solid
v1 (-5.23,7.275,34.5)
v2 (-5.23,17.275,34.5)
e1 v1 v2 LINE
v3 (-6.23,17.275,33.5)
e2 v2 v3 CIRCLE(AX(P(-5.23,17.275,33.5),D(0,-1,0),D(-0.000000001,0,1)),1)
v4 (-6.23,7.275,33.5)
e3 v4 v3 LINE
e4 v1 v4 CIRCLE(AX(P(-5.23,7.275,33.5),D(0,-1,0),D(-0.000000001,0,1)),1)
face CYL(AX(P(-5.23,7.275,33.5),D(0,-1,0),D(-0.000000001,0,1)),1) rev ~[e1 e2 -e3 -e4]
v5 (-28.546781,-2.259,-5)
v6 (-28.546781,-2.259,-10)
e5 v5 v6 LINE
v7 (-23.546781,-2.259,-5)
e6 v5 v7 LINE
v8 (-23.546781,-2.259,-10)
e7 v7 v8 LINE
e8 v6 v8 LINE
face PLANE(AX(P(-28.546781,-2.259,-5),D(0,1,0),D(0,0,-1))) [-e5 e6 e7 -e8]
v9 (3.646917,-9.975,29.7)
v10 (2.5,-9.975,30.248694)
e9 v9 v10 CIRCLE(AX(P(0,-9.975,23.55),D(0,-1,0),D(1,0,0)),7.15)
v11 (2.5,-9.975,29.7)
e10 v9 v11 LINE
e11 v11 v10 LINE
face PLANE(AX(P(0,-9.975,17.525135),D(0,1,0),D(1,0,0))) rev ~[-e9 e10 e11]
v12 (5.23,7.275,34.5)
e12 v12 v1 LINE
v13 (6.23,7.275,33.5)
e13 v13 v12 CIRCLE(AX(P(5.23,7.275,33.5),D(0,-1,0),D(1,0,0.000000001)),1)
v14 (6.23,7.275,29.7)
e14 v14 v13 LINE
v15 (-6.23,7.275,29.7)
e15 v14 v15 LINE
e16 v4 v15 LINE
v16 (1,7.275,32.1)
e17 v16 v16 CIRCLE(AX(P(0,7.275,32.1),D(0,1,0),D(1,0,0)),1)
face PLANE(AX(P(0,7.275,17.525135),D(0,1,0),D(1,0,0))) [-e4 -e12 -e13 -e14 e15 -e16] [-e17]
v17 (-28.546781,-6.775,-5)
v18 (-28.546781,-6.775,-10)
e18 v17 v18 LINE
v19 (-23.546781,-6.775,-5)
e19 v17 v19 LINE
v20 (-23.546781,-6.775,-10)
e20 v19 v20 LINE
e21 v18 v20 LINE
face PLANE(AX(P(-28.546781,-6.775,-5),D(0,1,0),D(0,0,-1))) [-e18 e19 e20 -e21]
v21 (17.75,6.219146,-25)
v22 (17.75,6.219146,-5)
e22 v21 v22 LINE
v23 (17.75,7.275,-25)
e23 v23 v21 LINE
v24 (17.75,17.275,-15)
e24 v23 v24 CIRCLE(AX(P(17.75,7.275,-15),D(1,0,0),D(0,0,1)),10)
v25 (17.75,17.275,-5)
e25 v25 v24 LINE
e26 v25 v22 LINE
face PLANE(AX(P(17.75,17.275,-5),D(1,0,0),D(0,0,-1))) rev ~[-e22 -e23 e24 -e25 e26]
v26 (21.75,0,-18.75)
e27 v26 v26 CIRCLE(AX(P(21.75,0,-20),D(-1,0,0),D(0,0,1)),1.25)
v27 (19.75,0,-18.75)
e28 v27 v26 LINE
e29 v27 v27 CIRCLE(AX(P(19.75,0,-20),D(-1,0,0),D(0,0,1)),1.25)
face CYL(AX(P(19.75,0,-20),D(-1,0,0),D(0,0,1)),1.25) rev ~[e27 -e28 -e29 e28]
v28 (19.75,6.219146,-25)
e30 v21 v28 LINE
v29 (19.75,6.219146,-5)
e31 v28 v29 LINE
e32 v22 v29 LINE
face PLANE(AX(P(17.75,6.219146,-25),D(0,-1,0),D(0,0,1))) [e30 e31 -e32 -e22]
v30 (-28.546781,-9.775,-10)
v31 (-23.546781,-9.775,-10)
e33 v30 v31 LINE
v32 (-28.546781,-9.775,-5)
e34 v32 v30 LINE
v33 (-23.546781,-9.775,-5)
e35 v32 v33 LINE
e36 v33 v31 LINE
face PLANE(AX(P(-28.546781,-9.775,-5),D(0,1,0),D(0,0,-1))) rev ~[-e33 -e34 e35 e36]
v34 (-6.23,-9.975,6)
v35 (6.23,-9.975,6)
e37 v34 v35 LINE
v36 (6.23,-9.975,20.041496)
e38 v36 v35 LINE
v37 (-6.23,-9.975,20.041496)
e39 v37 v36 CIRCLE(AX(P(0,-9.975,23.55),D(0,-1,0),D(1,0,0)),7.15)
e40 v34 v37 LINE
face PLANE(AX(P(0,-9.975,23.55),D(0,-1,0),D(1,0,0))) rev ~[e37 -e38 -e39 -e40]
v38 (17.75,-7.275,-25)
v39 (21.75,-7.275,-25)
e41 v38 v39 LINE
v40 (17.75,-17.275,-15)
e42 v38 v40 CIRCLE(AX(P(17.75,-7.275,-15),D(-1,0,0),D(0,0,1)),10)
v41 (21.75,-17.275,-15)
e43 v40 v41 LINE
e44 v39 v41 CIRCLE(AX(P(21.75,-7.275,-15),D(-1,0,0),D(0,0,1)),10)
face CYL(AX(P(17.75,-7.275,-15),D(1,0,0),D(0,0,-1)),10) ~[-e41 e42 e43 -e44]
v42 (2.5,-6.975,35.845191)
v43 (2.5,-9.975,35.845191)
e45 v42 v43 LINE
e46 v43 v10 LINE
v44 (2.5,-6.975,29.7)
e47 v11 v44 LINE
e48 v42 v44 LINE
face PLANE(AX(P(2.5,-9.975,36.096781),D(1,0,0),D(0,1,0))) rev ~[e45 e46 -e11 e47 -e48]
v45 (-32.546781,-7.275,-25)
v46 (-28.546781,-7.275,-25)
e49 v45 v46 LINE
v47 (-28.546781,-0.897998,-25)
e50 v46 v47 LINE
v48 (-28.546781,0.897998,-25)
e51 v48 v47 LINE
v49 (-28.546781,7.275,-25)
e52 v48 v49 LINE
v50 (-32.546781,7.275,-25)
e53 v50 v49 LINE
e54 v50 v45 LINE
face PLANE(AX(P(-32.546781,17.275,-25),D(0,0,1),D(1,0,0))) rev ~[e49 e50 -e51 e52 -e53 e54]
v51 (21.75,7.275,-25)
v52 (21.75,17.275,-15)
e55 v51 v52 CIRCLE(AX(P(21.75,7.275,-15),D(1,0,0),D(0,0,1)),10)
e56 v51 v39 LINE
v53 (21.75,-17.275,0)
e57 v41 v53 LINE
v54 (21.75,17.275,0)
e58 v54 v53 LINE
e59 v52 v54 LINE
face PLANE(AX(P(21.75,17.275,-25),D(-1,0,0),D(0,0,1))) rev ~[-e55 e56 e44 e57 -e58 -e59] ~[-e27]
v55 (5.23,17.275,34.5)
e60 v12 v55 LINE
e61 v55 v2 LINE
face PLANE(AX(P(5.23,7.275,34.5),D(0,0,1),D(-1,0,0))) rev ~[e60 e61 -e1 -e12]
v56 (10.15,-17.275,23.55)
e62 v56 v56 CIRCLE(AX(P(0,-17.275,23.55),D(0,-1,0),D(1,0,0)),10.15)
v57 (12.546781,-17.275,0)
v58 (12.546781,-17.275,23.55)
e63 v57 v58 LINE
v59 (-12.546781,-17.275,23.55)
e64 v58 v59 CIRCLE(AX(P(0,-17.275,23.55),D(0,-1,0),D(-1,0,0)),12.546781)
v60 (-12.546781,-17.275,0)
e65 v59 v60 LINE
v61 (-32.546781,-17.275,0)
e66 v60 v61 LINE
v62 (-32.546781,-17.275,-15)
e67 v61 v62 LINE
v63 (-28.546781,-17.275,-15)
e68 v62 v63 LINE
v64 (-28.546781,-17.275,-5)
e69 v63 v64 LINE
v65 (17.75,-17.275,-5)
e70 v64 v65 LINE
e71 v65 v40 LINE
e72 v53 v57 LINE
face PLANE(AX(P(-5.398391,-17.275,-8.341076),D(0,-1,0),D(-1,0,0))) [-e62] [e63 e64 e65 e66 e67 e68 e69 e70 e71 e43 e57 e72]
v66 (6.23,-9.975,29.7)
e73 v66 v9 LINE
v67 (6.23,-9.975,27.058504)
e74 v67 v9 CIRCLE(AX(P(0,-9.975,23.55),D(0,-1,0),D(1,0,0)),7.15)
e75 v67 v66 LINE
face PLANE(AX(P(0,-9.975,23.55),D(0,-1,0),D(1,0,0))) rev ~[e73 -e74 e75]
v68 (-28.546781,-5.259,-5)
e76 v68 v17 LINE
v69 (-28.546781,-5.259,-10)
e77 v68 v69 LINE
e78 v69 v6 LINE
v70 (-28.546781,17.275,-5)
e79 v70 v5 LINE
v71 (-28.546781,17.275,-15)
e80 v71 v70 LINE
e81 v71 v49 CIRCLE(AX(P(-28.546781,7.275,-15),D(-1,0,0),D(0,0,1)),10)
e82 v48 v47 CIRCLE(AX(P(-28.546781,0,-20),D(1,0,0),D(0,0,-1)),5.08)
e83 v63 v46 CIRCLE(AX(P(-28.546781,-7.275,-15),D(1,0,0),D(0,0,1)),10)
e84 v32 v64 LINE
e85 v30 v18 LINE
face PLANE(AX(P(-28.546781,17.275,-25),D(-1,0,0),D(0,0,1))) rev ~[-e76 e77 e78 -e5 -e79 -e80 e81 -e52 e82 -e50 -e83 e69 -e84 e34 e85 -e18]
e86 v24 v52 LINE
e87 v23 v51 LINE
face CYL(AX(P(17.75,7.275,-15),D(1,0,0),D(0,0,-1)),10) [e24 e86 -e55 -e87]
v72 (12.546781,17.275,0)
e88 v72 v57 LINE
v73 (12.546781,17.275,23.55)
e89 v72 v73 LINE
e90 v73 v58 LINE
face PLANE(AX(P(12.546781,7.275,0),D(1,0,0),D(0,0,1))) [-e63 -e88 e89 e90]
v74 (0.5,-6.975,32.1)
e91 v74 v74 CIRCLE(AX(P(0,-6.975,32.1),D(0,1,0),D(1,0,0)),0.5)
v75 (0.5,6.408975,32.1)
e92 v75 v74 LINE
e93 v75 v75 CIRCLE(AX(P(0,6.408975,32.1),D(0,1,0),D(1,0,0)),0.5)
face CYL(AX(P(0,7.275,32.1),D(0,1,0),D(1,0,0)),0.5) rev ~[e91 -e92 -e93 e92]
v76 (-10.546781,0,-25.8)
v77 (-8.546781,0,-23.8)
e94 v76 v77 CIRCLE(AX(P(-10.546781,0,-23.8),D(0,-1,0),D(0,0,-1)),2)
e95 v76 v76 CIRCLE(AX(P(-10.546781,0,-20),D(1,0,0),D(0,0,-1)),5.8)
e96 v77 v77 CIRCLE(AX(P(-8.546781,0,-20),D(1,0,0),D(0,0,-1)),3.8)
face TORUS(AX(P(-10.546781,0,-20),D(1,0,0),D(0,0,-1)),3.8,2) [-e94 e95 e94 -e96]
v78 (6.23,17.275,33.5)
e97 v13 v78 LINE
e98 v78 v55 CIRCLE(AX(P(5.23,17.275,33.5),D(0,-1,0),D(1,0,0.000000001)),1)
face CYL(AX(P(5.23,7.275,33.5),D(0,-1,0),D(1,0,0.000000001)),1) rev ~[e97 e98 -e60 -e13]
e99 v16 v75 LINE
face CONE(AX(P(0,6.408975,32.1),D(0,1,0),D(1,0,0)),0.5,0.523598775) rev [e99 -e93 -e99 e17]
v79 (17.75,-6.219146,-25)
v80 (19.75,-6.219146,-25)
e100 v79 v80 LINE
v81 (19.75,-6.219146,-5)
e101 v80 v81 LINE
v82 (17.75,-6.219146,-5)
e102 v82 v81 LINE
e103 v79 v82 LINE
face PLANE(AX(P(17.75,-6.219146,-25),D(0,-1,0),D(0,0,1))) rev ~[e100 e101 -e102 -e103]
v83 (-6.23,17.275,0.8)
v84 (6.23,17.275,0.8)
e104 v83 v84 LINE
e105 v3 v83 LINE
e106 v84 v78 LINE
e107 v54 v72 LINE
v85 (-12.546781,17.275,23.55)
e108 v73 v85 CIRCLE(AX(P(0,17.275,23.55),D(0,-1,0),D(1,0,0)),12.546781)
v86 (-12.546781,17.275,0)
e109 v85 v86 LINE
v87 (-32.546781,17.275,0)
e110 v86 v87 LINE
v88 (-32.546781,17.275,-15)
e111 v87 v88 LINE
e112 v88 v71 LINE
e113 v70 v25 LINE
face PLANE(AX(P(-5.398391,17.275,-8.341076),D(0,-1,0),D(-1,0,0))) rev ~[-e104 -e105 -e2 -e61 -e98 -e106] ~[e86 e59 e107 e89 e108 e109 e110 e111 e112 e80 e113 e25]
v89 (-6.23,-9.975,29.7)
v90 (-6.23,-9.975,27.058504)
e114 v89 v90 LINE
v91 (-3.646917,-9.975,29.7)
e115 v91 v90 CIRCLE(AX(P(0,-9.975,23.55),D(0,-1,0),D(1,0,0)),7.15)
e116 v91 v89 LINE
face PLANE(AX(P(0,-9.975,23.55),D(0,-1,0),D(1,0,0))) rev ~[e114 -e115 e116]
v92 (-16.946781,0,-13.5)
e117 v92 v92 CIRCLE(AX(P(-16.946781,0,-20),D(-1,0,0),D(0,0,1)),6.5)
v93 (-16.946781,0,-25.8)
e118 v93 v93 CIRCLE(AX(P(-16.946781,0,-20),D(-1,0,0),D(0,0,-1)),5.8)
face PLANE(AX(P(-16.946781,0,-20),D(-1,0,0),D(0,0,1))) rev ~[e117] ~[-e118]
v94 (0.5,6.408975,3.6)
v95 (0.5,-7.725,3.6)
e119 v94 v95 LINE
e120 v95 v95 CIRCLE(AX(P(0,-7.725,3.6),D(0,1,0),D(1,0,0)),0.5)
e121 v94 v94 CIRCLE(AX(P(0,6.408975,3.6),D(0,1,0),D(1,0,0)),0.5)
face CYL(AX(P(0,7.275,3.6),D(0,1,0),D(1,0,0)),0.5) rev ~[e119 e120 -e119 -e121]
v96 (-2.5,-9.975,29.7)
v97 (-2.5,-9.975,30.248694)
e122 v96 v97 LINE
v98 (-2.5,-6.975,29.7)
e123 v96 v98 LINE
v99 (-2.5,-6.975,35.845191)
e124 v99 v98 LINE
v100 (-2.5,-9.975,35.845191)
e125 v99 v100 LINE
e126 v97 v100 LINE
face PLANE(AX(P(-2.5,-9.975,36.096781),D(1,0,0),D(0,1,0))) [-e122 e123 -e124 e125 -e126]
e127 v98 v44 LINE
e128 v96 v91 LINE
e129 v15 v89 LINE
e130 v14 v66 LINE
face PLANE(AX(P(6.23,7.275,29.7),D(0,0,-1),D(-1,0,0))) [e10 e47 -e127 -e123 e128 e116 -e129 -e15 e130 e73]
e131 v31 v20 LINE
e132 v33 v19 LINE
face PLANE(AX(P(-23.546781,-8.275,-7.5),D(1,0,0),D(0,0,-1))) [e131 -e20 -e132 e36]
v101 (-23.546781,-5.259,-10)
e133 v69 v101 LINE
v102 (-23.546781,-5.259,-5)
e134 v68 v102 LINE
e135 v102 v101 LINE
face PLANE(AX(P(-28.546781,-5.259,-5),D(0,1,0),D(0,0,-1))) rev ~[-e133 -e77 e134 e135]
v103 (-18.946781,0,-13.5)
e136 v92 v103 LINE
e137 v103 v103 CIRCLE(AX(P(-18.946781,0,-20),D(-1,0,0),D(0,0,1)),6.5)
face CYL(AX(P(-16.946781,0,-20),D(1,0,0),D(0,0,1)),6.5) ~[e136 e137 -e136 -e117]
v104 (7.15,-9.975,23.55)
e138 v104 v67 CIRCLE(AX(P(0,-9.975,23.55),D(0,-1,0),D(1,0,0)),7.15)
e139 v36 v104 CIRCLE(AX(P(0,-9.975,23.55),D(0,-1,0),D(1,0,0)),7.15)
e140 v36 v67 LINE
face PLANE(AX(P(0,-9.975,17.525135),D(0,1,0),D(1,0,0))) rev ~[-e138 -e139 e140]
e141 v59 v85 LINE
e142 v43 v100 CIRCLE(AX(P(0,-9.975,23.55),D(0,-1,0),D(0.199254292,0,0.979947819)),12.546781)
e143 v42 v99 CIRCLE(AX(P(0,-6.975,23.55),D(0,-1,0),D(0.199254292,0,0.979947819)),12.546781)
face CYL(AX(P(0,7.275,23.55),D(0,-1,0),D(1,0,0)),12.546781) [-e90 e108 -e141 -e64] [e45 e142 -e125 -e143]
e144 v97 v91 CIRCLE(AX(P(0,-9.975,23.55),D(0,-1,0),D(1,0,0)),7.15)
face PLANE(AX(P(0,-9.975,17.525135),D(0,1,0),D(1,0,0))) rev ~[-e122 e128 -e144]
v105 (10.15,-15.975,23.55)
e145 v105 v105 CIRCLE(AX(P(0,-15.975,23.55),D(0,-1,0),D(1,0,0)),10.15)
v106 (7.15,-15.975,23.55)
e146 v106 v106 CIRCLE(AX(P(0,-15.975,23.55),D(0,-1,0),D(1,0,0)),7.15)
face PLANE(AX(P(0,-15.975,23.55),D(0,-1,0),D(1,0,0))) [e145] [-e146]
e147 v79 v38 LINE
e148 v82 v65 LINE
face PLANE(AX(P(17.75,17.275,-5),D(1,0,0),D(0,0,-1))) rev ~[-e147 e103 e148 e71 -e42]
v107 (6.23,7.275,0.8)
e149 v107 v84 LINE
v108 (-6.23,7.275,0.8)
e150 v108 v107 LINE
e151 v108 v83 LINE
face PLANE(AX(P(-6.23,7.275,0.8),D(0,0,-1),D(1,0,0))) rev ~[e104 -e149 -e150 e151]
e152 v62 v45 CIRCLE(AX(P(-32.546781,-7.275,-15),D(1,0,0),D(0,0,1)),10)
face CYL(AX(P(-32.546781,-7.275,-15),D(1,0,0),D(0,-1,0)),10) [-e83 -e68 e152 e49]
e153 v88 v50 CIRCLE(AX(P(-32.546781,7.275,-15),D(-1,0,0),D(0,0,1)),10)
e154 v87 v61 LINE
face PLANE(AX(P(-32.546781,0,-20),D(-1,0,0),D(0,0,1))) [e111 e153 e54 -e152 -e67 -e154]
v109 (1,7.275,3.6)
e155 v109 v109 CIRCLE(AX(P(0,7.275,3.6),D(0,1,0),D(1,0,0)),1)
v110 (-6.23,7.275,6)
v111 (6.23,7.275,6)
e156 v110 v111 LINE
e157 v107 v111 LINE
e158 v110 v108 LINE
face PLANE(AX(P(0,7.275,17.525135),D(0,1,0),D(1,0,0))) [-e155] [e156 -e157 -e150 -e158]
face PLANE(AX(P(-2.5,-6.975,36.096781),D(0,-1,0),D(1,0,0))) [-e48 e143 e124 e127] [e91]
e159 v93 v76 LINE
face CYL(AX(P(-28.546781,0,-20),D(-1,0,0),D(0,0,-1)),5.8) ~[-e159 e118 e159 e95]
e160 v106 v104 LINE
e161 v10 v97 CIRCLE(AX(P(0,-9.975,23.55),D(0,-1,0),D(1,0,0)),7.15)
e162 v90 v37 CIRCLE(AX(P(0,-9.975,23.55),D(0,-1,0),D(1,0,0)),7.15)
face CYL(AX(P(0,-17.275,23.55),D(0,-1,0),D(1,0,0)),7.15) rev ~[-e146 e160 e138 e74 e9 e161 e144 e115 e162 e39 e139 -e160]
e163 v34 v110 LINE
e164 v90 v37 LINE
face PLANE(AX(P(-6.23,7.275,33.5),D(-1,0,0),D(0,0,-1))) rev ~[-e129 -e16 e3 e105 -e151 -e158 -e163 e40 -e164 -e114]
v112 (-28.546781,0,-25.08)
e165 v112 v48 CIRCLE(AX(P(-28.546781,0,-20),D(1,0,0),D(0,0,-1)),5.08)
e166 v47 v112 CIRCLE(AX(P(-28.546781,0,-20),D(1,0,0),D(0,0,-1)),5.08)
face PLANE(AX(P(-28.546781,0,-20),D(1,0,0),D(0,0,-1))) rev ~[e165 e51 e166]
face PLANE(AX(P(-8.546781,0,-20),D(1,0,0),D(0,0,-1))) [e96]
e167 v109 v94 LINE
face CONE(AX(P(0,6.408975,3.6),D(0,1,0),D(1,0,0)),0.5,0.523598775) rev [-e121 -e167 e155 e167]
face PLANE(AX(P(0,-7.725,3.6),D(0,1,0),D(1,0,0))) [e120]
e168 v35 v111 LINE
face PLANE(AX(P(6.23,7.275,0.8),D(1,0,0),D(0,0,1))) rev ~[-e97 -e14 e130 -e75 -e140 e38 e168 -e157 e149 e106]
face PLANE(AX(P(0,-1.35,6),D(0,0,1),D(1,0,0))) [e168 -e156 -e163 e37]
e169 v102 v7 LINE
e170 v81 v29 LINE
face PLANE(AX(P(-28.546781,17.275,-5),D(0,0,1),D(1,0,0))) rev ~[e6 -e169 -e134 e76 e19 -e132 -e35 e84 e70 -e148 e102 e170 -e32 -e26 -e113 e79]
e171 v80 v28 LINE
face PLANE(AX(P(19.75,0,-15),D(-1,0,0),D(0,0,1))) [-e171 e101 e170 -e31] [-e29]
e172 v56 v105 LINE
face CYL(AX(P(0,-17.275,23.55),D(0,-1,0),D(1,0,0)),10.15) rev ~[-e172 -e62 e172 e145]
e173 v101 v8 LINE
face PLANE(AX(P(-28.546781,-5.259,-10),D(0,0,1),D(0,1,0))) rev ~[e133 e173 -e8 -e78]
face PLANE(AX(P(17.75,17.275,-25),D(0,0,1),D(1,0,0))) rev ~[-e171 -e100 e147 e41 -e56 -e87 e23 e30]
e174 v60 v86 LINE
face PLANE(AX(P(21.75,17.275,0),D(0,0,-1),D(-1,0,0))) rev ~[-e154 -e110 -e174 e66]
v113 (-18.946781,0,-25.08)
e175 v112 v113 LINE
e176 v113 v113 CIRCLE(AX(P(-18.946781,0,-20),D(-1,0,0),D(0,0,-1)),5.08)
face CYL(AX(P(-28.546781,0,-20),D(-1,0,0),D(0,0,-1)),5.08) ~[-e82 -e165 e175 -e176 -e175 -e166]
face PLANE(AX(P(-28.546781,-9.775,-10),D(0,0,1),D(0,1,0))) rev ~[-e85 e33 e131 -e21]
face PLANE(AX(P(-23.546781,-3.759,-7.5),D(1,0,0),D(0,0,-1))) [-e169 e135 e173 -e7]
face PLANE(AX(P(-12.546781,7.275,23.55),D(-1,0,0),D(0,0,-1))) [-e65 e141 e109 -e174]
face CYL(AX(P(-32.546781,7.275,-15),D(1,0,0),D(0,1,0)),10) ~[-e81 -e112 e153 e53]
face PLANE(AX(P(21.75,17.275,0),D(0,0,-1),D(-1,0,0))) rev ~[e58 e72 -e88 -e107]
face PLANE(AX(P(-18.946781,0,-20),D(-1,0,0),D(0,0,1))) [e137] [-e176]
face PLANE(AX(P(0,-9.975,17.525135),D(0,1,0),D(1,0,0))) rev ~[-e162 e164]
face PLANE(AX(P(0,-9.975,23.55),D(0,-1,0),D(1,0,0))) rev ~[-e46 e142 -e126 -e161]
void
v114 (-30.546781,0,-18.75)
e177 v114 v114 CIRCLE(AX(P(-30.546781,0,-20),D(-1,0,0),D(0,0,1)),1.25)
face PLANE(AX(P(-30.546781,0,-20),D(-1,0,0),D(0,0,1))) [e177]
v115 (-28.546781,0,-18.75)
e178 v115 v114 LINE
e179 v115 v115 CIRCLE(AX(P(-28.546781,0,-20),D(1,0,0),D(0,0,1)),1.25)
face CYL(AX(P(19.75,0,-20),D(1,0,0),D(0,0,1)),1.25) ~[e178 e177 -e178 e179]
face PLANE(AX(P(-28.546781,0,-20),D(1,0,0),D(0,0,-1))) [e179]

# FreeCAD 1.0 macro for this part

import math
import FreeCAD as App
import Part
import Sketcher
from FreeCAD import Vector


def edges_at(feature, points):
    """Names of the edges that pass closest to the given points."""
    edges = feature.Shape.Edges
    near = lambda p: min(range(len(edges)), key=lambda i: edges[i].distToShape(Part.Vertex(*p))[0])
    return sorted({f"Edge{near(p) + 1}" for p in points})


def add_polygon(sketch, points):
    """Adds a closed chain of lines whose ends are joined by coincident constraints."""
    first, n = sketch.GeometryCount, len(points)
    for a, b in zip(points, points[1:] + points[:1]):
        sketch.addGeometry(Part.LineSegment(App.Vector(*a, 0), App.Vector(*b, 0)), False)
    for i in range(n):
        sketch.addConstraint(Sketcher.Constraint("Coincident", first + i, 2, first + (i + 1) % n, 1))

doc = App.newDocument("Part")
body = doc.addObject("PartDesign::Body", "Body")

sketch1 = body.newObject("Sketcher::SketchObject", "Sketch")
sketch1.AttachmentSupport = (doc.getObject("XY_Plane"), [""])
sketch1.MapMode = "FlatFace"
add_polygon(sketch1, [(-6, 7), (-6, -10), (6, -10), (6, 7)])
sketch1.addConstraint([
    Sketcher.Constraint("Vertical", 0),
    Sketcher.Constraint("Horizontal", 1),
    Sketcher.Constraint("Vertical", 2),
    Sketcher.Constraint("Horizontal", 3),
    Sketcher.Constraint("DistanceX", 1, 1, 1, 2, 12.46),
    Sketcher.Constraint("DistanceY", 0, 2, 0, 1, 17.25),
    Sketcher.Constraint("DistanceX", 0, 2, -1, 1, 6.23),
    Sketcher.Constraint("DistanceY", 0, 2, -1, 1, 9.975),
])
pad1 = body.newObject("PartDesign::Pad", "Pad")
pad1.Profile = sketch1
pad1.Length = 6
body2 = doc.addObject("PartDesign::Body", "Body001")

sketch2 = body2.newObject("Sketcher::SketchObject", "Sketch001")
sketch2.AttachmentSupport = (doc.getObject("XZ_Plane001"), [""])
sketch2.MapMode = "FlatFace"
sketch2.AttachmentOffset = App.Placement(Vector(0, 0, 9.975), App.Rotation())
sketch2.addGeometry([
    Part.Circle(Vector(0, 24, 0), Vector(0, 0, 1), 13),
    Part.Circle(Vector(0, 24, 0), Vector(0, 0, 1), 11),
], False)
sketch2.addConstraint([
    Sketcher.Constraint("Coincident", 1, 3, 0, 3),
    Sketcher.Constraint("PointOnObject", 0, 3, -2),
    Sketcher.Constraint("Diameter", 1, 22.3),
    Sketcher.Constraint("DistanceY", -1, 1, 0, 3, 23.55),
    Sketcher.Constraint("Diameter", 0, 25.093562),
])
pad2 = body2.newObject("PartDesign::Pad", "Pad001")
pad2.Profile = sketch2
pad2.Type = "TwoLengths"
pad2.Length = 7.3
pad2.Length2 = 17.25
body.AllowCompound = True
doc.recompute()

boolean = body.newObject("PartDesign::Boolean", "Boolean")
boolean.Type = "Fuse"
boolean.addObjects([body2])

sketch3 = body.newObject("Sketcher::SketchObject", "Sketch002")
sketch3.AttachmentSupport = (doc.getObject("XZ_Plane"), [""])
sketch3.MapMode = "FlatFace"
sketch3.AttachmentOffset = App.Placement(Vector(0, 0, -7.275), App.Rotation())
sketch3.addGeometry([
    Part.LineSegment(Vector(13, 24, 0), Vector(13, 0, 0)),
    Part.LineSegment(Vector(13, 0, 0), Vector(6, 0, 0)),
    Part.LineSegment(Vector(6, 0, 0), Vector(6, 30, 0)),
    Part.LineSegment(Vector(6, 30, 0), Vector(-6, 30, 0)),
    Part.LineSegment(Vector(-6, 30, 0), Vector(-6, 0, 0)),
    Part.LineSegment(Vector(-6, 0, 0), Vector(-13, 0, 0)),
    Part.LineSegment(Vector(-13, 0, 0), Vector(-13, 24, 0)),
    Part.ArcOfCircle(Part.Circle(Vector(0, 24, 0), Vector(0, 0, 1), 13), math.radians(0), math.radians(180)),
], False)
sketch3.addConstraint([
    Sketcher.Constraint("Coincident", 0, 2, 1, 1),
    Sketcher.Constraint("Coincident", 1, 2, 2, 1),
    Sketcher.Constraint("Coincident", 2, 2, 3, 1),
    Sketcher.Constraint("Coincident", 3, 2, 4, 1),
    Sketcher.Constraint("Coincident", 4, 2, 5, 1),
    Sketcher.Constraint("Coincident", 5, 2, 6, 1),
    Sketcher.Constraint("Tangent", 6, 2, 7, 2),
    Sketcher.Constraint("Tangent", 7, 1, 0, 1),
    Sketcher.Constraint("Vertical", 0),
    Sketcher.Constraint("Horizontal", 1),
    Sketcher.Constraint("Vertical", 2),
    Sketcher.Constraint("Horizontal", 3),
    Sketcher.Constraint("Vertical", 4),
    Sketcher.Constraint("Horizontal", 5),
    Sketcher.Constraint("Vertical", 6),
    Sketcher.Constraint("Symmetric", 1, 2, 4, 2, -1, 1),
    Sketcher.Constraint("Symmetric", 0, 2, 5, 2, -2),
    Sketcher.Constraint("DistanceY", 2, 1, 2, 2, 29.7),
    Sketcher.Constraint("DistanceX", 3, 2, 3, 1, 12.46),
    Sketcher.Constraint("DistanceY", 0, 2, 0, 1, 23.55),
    Sketcher.Constraint("Radius", 7, 12.546781),
])
pad3 = body.newObject("PartDesign::Pad", "Pad002")
pad3.Profile = sketch3
pad3.Length = 17.25

sketch4 = body.newObject("Sketcher::SketchObject", "Sketch003")
sketch4.AttachmentSupport = (doc.getObject("XZ_Plane"), [""])
sketch4.MapMode = "FlatFace"
sketch4.AttachmentOffset = App.Placement(Vector(0, 0, -7.275), App.Rotation())
sketch4.addGeometry([
    Part.Circle(Vector(0, 3.6, 0), Vector(0, 0, 1), 0.5),
    Part.Circle(Vector(0, 32.1, 0), Vector(0, 0, 1), 0.5),
], False)
sketch4.addConstraint([
    Sketcher.Constraint("Equal", 0, 1),
    Sketcher.Constraint("PointOnObject", 0, 3, -2),
    Sketcher.Constraint("PointOnObject", 1, 3, -2),
    Sketcher.Constraint("Diameter", 0, 1.0),
    Sketcher.Constraint("DistanceY", -1, 1, 0, 3, 3.6),
    Sketcher.Constraint("DistanceY", -1, 1, 1, 3, 32.1),
])
pocket1 = body.newObject("PartDesign::Pocket", "Pocket")
pocket1.Profile = sketch4
pocket1.Length = 15
pocket1.Reversed = True
doc.recompute()

chamfer = body.newObject("PartDesign::Chamfer", "Chamfer")
chamfer.Base = (pocket1, edges_at(pocket1, [(-0.5, 7.275, 3.6), (-0.5, 7.275, 32.1)]))
chamfer.ChamferType = "Two distances"
chamfer.Size = 0.5
chamfer.Size2 = 0.866025

sketch5 = body.newObject("Sketcher::SketchObject", "Sketch004")
sketch5.AttachmentSupport = (doc.getObject("XZ_Plane"), [""])
sketch5.MapMode = "FlatFace"
sketch5.AttachmentOffset = App.Placement(Vector(0, 0, -7.275), App.Rotation())
add_polygon(sketch5, [(-6, 6), (-6, 30), (6, 30), (6, 6)])
sketch5.addConstraint([
    Sketcher.Constraint("Vertical", 0),
    Sketcher.Constraint("Horizontal", 1),
    Sketcher.Constraint("Vertical", 2),
    Sketcher.Constraint("Horizontal", 3),
    Sketcher.Constraint("DistanceY", 0, 1, 0, 2, 23.7),
    Sketcher.Constraint("DistanceY", -1, 1, 2, 2, 6.0),
    Sketcher.Constraint("DistanceX", 1, 1, 1, 2, 12.46),
    Sketcher.Constraint("DistanceX", 0, 2, -1, 1, 6.23),
])
pocket2 = body.newObject("PartDesign::Pocket", "Pocket001")
pocket2.Profile = sketch5
pocket2.Length = 17.25
pocket2.Reversed = True

sketch6 = body.newObject("Sketcher::SketchObject", "Sketch005")
sketch6.AttachmentSupport = (doc.getObject("XY_Plane"), [""])
sketch6.MapMode = "FlatFace"
sketch6.AttachmentOffset = App.Placement(Vector(0, 0, 36.096781), App.Rotation())
add_polygon(sketch6, [(-2.5, -7), (-2.5, -10), (2.5, -10), (2.5, -7)])
sketch6.addConstraint([
    Sketcher.Constraint("Vertical", 0),
    Sketcher.Constraint("Horizontal", 1),
    Sketcher.Constraint("Vertical", 2),
    Sketcher.Constraint("Horizontal", 3),
    Sketcher.Constraint("DistanceX", 1, 1, 1, 2, 5.0),
    Sketcher.Constraint("DistanceY", 0, 2, 0, 1, 3.0),
    Sketcher.Constraint("DistanceX", 0, 2, -1, 1, 2.5),
    Sketcher.Constraint("DistanceY", 0, 2, -1, 1, 9.975),
])
pocket3 = body.newObject("PartDesign::Pocket", "Pocket002")
pocket3.Profile = sketch6
pocket3.Type = "UpToFirst"

sketch7 = body.newObject("Sketcher::SketchObject", "Sketch006")
sketch7.AttachmentSupport = (doc.getObject("XZ_Plane"), [""])
sketch7.MapMode = "FlatFace"
sketch7.AttachmentOffset = App.Placement(Vector(0, 0, 17.275), App.Rotation())
sketch7.addGeometry([
    Part.LineSegment(Vector(-13, 24, 0), Vector(-13, 0, 0)),
    Part.LineSegment(Vector(-13, 0, 0), Vector(13, 0, 0)),
    Part.LineSegment(Vector(13, 0, 0), Vector(13, 24, 0)),
    Part.ArcOfCircle(Part.Circle(Vector(0, 24, 0), Vector(0, 0, 1), 13), math.radians(180), math.radians(360)),
], False)
sketch7.addConstraint([
    Sketcher.Constraint("Coincident", 0, 2, 1, 1),
    Sketcher.Constraint("Coincident", 1, 2, 2, 1),
    Sketcher.Constraint("Tangent", 2, 2, 3, 2),
    Sketcher.Constraint("Tangent", 3, 1, 0, 1),
    Sketcher.Constraint("Vertical", 0),
    Sketcher.Constraint("Horizontal", 1),
    Sketcher.Constraint("Vertical", 2),
    Sketcher.Constraint("Symmetric", 0, 2, 1, 2, -1, 1),
    Sketcher.Constraint("DistanceY", 0, 2, 0, 1, 23.55),
    Sketcher.Constraint("Radius", 3, 12.546781),
])
pad4 = body.newObject("PartDesign::Pad", "Pad003")
pad4.Profile = sketch7
pad4.Length = 7.3
pad4.Reversed = True

sketch8 = body.newObject("Sketcher::SketchObject", "Sketch007")
sketch8.AttachmentSupport = (doc.getObject("XZ_Plane"), [""])
sketch8.MapMode = "FlatFace"
sketch8.AttachmentOffset = App.Placement(Vector(0, 0, -7.275), App.Rotation())
sketch8.addGeometry([
    Part.LineSegment(Vector(12.5, 0, 0), Vector(-12.5, 0, 0)),
    Part.LineSegment(Vector(-12.5, 0, 0), Vector(-12.5, 23.6, 0)),
    Part.ArcOfCircle(Part.Circle(Vector(0, 23.6, 0), Vector(0, 0, 1), 12.5), math.radians(0), math.radians(180)),
    Part.LineSegment(Vector(12.5, 23.6, 0), Vector(12.5, 0, 0)),
    Part.LineSegment(Vector(-6.2, 0.8, 0), Vector(6.2, 0.8, 0)),
    Part.LineSegment(Vector(6.2, 0.8, 0), Vector(6.2, 33.5, 0)),
    Part.ArcOfCircle(Part.Circle(Vector(5.2, 33.5, 0), Vector(0, 0, 1), 1), math.radians(0), math.radians(90)),
    Part.LineSegment(Vector(5.2, 34.5, 0), Vector(-5.2, 34.5, 0)),
    Part.ArcOfCircle(Part.Circle(Vector(-5.2, 33.5, 0), Vector(0, 0, 1), 1), math.radians(90), math.radians(180)),
    Part.LineSegment(Vector(-6.2, 33.5, 0), Vector(-6.2, 0.8, 0)),
], False)
sketch8.addConstraint([
    Sketcher.Constraint("Coincident", 0, 2, 1, 1),
    Sketcher.Constraint("Tangent", 1, 2, 2, 2),
    Sketcher.Constraint("Tangent", 2, 1, 3, 1),
    Sketcher.Constraint("Coincident", 3, 2, 0, 1),
    Sketcher.Constraint("Coincident", 4, 2, 5, 1),
    Sketcher.Constraint("Tangent", 5, 2, 6, 1),
    Sketcher.Constraint("Tangent", 6, 2, 7, 1),
    Sketcher.Constraint("Tangent", 7, 2, 8, 1),
    Sketcher.Constraint("Tangent", 8, 2, 9, 1),
    Sketcher.Constraint("Coincident", 9, 2, 4, 1),
    Sketcher.Constraint("Horizontal", 0),
    Sketcher.Constraint("Vertical", 1),
    Sketcher.Constraint("Vertical", 3),
    Sketcher.Constraint("Horizontal", 4),
    Sketcher.Constraint("Vertical", 5),
    Sketcher.Constraint("Horizontal", 7),
    Sketcher.Constraint("Vertical", 9),
    Sketcher.Constraint("Equal", 6, 8),
    Sketcher.Constraint("Symmetric", 0, 2, 3, 2, -1, 1),
    Sketcher.Constraint("Radius", 6, 1.0),
    Sketcher.Constraint("DistanceY", 5, 1, 5, 2, 32.7),
    Sketcher.Constraint("DistanceX", 4, 1, 4, 2, 12.46),
    Sketcher.Constraint("DistanceY", 1, 1, 1, 2, 23.55),
    Sketcher.Constraint("DistanceY", -1, 1, 6, 3, 33.5),
    Sketcher.Constraint("DistanceX", -1, 1, 6, 3, 5.23),
    Sketcher.Constraint("Radius", 2, 12.546781),
])
pad5 = body.newObject("PartDesign::Pad", "Pad004")
pad5.Profile = sketch8
pad5.Length = 10
pad5.Reversed = True

sketch9 = body.newObject("Sketcher::SketchObject", "Sketch008")
sketch9.AttachmentSupport = (doc.getObject("XZ_Plane"), [""])
sketch9.MapMode = "FlatFace"
sketch9.AttachmentOffset = App.Placement(Vector(0, 0, 17.275), App.Rotation())
sketch9.addGeometry([
    Part.Circle(Vector(0, 24, 0), Vector(0, 0, 1), 11),
    Part.Circle(Vector(0, 24, 0), Vector(0, 0, 1), 7),
], False)
sketch9.addConstraint([
    Sketcher.Constraint("Coincident", 1, 3, 0, 3),
    Sketcher.Constraint("PointOnObject", 0, 3, -2),
    Sketcher.Constraint("Diameter", 0, 22.3),
    Sketcher.Constraint("Diameter", 1, 14.3),
    Sketcher.Constraint("DistanceY", -1, 1, 0, 3, 23.55),
])
pad6 = body.newObject("PartDesign::Pad", "Pad005")
pad6.Profile = sketch9
pad6.Length = 7.3
pad6.Reversed = True

sketch10 = body.newObject("Sketcher::SketchObject", "Sketch009")
sketch10.AttachmentSupport = (doc.getObject("XZ_Plane"), [""])
sketch10.MapMode = "FlatFace"
sketch10.AttachmentOffset = App.Placement(Vector(0, 0, 17.275), App.Rotation())
sketch10.addGeometry([
    Part.Circle(Vector(0, 24, 0), Vector(0, 0, 1), 10),
    Part.Circle(Vector(0, 24, 0), Vector(0, 0, 1), 7),
], False)
sketch10.addConstraint([
    Sketcher.Constraint("Coincident", 1, 3, 0, 3),
    Sketcher.Constraint("PointOnObject", 0, 3, -2),
    Sketcher.Constraint("Diameter", 0, 20.3),
    Sketcher.Constraint("Diameter", 1, 14.3),
    Sketcher.Constraint("DistanceY", -1, 1, 0, 3, 23.55),
])
pocket4 = body.newObject("PartDesign::Pocket", "Pocket003")
pocket4.Profile = sketch10
pocket4.Length = 1.3

sketch11 = body.newObject("Sketcher::SketchObject", "Sketch010")
sketch11.AttachmentSupport = (doc.getObject("XZ_Plane"), [""])
sketch11.MapMode = "FlatFace"
sketch11.AttachmentOffset = App.Placement(Vector(0, 0, -17.275), App.Rotation())
add_polygon(sketch11, [(21.8, 0), (21.8, -25), (17.8, -25), (17.8, -5), (-28.5, -5), (-28.5, -25), (-32.5, -25), (-32.5, 0)])
sketch11.addConstraint([
    Sketcher.Constraint("Vertical", 0),
    Sketcher.Constraint("Horizontal", 1),
    Sketcher.Constraint("Vertical", 2),
    Sketcher.Constraint("Horizontal", 3),
    Sketcher.Constraint("Vertical", 4),
    Sketcher.Constraint("Horizontal", 5),
    Sketcher.Constraint("Vertical", 6),
    Sketcher.Constraint("Horizontal", 7),
    Sketcher.Constraint("PointOnObject", 6, 2, -1),
    Sketcher.Constraint("Horizontal", 1, 2, 4, 2),
    Sketcher.Constraint("Equal", 1, 5),
    Sketcher.Constraint("DistanceX", 1, 2, 1, 1, 4.0),
    Sketcher.Constraint("DistanceY", 0, 2, 0, 1, 25.0),
    Sketcher.Constraint("DistanceY", 2, 1, 2, 2, 20.0),
    Sketcher.Constraint("DistanceX", -1, 1, 0, 2, 21.75),
    Sketcher.Constraint("DistanceX", 3, 2, 3, 1, 46.296781),
])
pad7 = body.newObject("PartDesign::Pad", "Pad006")
pad7.Profile = sketch11
pad7.Length = 34.55

sketch12 = body.newObject("Sketcher::SketchObject", "Sketch011")
sketch12.AttachmentSupport = (doc.getObject("YZ_Plane"), [""])
sketch12.MapMode = "FlatFace"
sketch12.AttachmentOffset = App.Placement(Vector(0, 0, 17.75), App.Rotation())
add_polygon(sketch12, [(6, -25), (-6, -25), (-6, -5), (6, -5)])
sketch12.addConstraint([
    Sketcher.Constraint("Horizontal", 0),
    Sketcher.Constraint("Vertical", 1),
    Sketcher.Constraint("Horizontal", 2),
    Sketcher.Constraint("Vertical", 3),
    Sketcher.Constraint("DistanceY", 1, 1, 1, 2, 20.0),
    Sketcher.Constraint("DistanceY", 0, 2, -1, 1, 25.0),
    Sketcher.Constraint("DistanceX", 0, 2, 0, 1, 12.438293),
    Sketcher.Constraint("DistanceX", 0, 2, -1, 1, 6.219146),
])
pocket5 = body.newObject("PartDesign::Pocket", "Pocket004")
pocket5.Profile = sketch12
pocket5.Length = 2
pocket5.Reversed = True

sketch13 = body.newObject("Sketcher::SketchObject", "Sketch012")
sketch13.AttachmentSupport = (doc.getObject("YZ_Plane"), [""])
sketch13.MapMode = "FlatFace"
sketch13.AttachmentOffset = App.Placement(Vector(0, 0, 19.75), App.Rotation())
sketch13.addGeometry(Part.Circle(Vector(0, -20, 0), Vector(0, 0, 1), 1.2), False)
sketch13.addConstraint([
    Sketcher.Constraint("PointOnObject", 0, 3, -2),
    Sketcher.Constraint("Diameter", 0, 2.5),
    Sketcher.Constraint("DistanceY", 0, 3, -1, 1, 20.0),
])
pocket6 = body.newObject("PartDesign::Pocket", "Pocket005")
pocket6.Profile = sketch13
pocket6.Type = "ThroughAll"
pocket6.Midplane = True
doc.recompute()

fillet = body.newObject("PartDesign::Fillet", "Fillet")
fillet.Base = (pocket6, edges_at(pocket6, [
    (19.75, 17.275, -25),
    (-30.547, 17.275, -25),
    (-30.547, -17.275, -25),
    (19.75, -17.275, -25),
]))
fillet.Radius = 10

sketch14 = body.newObject("Sketcher::SketchObject", "Sketch013")
sketch14.AttachmentSupport = (doc.getObject("YZ_Plane"), [""])
sketch14.MapMode = "FlatFace"
sketch14.AttachmentOffset = App.Placement(Vector(0, 0, -28.546781), App.Rotation())
sketch14.addGeometry(Part.Circle(Vector(0, -20, 0), Vector(0, 0, 1), 6), False)
sketch14.addConstraint([
    Sketcher.Constraint("PointOnObject", 0, 3, -2),
    Sketcher.Constraint("Diameter", 0, 11.6),
    Sketcher.Constraint("DistanceY", 0, 3, -1, 1, 20.0),
])
pad8 = body.newObject("PartDesign::Pad", "Pad007")
pad8.Profile = sketch14
pad8.Length = 20
doc.recompute()

fillet2 = body.newObject("PartDesign::Fillet", "Fillet001")
fillet2.Base = (pad8, edges_at(pad8, [(-8.547, 0, -14.2)]))
fillet2.Radius = 2

sketch15 = body.newObject("Sketcher::SketchObject", "Sketch014")
sketch15.AttachmentSupport = (doc.getObject("YZ_Plane"), [""])
sketch15.MapMode = "FlatFace"
sketch15.AttachmentOffset = App.Placement(Vector(0, 0, -28.546781), App.Rotation())
sketch15.addGeometry([
    Part.Circle(Vector(0, -20, 0), Vector(0, 0, 1), 6),
    Part.Circle(Vector(0, -20, 0), Vector(0, 0, 1), 5),
], False)
sketch15.addConstraint([
    Sketcher.Constraint("Coincident", 1, 3, 0, 3),
    Sketcher.Constraint("PointOnObject", 0, 3, -2),
    Sketcher.Constraint("Diameter", 1, 10.16),
    Sketcher.Constraint("DistanceY", 0, 3, -1, 1, 20.0),
    Sketcher.Constraint("Diameter", 0, 11.861708),
])
pocket7 = body.newObject("PartDesign::Pocket", "Pocket006")
pocket7.Profile = sketch15
pocket7.Length = 11.6
pocket7.Reversed = True

sketch16 = body.newObject("Sketcher::SketchObject", "Sketch015")
sketch16.AttachmentSupport = (doc.getObject("YZ_Plane"), [""])
sketch16.MapMode = "FlatFace"
sketch16.AttachmentOffset = App.Placement(Vector(0, 0, -16.946781), App.Rotation())
sketch16.addGeometry(Part.Circle(Vector(0, -20, 0), Vector(0, 0, 1), 6), False)
sketch16.addConstraint([
    Sketcher.Constraint("PointOnObject", 0, 3, -2),
    Sketcher.Constraint("Diameter", 0, 13.0),
    Sketcher.Constraint("DistanceY", 0, 3, -1, 1, 20.0),
])
pad9 = body.newObject("PartDesign::Pad", "Pad008")
pad9.Profile = sketch16
pad9.Length = 2
pad9.Reversed = True

sketch17 = body.newObject("Sketcher::SketchObject", "Sketch016")
sketch17.AttachmentSupport = (doc.getObject("YZ_Plane"), [""])
sketch17.MapMode = "FlatFace"
sketch17.AttachmentOffset = App.Placement(Vector(0, 0, -32.546781), App.Rotation())
sketch17.addGeometry(Part.Circle(Vector(0, -20, 0), Vector(0, 0, 1), 1.2), False)
sketch17.addConstraint([
    Sketcher.Constraint("PointOnObject", 0, 3, -2),
    Sketcher.Constraint("Diameter", 0, 2.5),
    Sketcher.Constraint("DistanceY", 0, 3, -1, 1, 20.0),
])
pad10 = body.newObject("PartDesign::Pad", "Pad009")
pad10.Profile = sketch17
pad10.Length = 2

sketch18 = body.newObject("Sketcher::SketchObject", "Sketch017")
sketch18.AttachmentSupport = (doc.getObject("YZ_Plane"), [""])
sketch18.MapMode = "FlatFace"
sketch18.AttachmentOffset = App.Placement(Vector(0, 0, -28.546781), App.Rotation())
add_polygon(sketch18, [(-6.8, -5), (-9.8, -5), (-9.8, -10), (-6.8, -10)])
add_polygon(sketch18, [(-2.3, -5), (-5.3, -5), (-5.3, -10), (-2.3, -10)])
sketch18.addConstraint([
    Sketcher.Constraint("Horizontal", 0),
    Sketcher.Constraint("Vertical", 1),
    Sketcher.Constraint("Horizontal", 2),
    Sketcher.Constraint("Vertical", 3),
    Sketcher.Constraint("Horizontal", 4),
    Sketcher.Constraint("Vertical", 5),
    Sketcher.Constraint("Horizontal", 6),
    Sketcher.Constraint("Vertical", 7),
    Sketcher.Constraint("Horizontal", 3, 2, 4, 2),
    Sketcher.Constraint("Horizontal", 2, 2, 5, 2),
    Sketcher.Constraint("Equal", 2, 4),
    Sketcher.Constraint("DistanceX", 0, 2, 0, 1, 3.0),
    Sketcher.Constraint("DistanceY", 1, 2, 1, 1, 5.0),
    Sketcher.Constraint("DistanceY", 0, 2, -1, 1, 5.0),
    Sketcher.Constraint("DistanceX", 0, 2, -1, 1, 9.775),
    Sketcher.Constraint("DistanceX", 4, 2, -1, 1, 5.259),
])
pad11 = body.newObject("PartDesign::Pad", "Pad010")
pad11.Profile = sketch18
pad11.Length = 5

doc.recompute()
